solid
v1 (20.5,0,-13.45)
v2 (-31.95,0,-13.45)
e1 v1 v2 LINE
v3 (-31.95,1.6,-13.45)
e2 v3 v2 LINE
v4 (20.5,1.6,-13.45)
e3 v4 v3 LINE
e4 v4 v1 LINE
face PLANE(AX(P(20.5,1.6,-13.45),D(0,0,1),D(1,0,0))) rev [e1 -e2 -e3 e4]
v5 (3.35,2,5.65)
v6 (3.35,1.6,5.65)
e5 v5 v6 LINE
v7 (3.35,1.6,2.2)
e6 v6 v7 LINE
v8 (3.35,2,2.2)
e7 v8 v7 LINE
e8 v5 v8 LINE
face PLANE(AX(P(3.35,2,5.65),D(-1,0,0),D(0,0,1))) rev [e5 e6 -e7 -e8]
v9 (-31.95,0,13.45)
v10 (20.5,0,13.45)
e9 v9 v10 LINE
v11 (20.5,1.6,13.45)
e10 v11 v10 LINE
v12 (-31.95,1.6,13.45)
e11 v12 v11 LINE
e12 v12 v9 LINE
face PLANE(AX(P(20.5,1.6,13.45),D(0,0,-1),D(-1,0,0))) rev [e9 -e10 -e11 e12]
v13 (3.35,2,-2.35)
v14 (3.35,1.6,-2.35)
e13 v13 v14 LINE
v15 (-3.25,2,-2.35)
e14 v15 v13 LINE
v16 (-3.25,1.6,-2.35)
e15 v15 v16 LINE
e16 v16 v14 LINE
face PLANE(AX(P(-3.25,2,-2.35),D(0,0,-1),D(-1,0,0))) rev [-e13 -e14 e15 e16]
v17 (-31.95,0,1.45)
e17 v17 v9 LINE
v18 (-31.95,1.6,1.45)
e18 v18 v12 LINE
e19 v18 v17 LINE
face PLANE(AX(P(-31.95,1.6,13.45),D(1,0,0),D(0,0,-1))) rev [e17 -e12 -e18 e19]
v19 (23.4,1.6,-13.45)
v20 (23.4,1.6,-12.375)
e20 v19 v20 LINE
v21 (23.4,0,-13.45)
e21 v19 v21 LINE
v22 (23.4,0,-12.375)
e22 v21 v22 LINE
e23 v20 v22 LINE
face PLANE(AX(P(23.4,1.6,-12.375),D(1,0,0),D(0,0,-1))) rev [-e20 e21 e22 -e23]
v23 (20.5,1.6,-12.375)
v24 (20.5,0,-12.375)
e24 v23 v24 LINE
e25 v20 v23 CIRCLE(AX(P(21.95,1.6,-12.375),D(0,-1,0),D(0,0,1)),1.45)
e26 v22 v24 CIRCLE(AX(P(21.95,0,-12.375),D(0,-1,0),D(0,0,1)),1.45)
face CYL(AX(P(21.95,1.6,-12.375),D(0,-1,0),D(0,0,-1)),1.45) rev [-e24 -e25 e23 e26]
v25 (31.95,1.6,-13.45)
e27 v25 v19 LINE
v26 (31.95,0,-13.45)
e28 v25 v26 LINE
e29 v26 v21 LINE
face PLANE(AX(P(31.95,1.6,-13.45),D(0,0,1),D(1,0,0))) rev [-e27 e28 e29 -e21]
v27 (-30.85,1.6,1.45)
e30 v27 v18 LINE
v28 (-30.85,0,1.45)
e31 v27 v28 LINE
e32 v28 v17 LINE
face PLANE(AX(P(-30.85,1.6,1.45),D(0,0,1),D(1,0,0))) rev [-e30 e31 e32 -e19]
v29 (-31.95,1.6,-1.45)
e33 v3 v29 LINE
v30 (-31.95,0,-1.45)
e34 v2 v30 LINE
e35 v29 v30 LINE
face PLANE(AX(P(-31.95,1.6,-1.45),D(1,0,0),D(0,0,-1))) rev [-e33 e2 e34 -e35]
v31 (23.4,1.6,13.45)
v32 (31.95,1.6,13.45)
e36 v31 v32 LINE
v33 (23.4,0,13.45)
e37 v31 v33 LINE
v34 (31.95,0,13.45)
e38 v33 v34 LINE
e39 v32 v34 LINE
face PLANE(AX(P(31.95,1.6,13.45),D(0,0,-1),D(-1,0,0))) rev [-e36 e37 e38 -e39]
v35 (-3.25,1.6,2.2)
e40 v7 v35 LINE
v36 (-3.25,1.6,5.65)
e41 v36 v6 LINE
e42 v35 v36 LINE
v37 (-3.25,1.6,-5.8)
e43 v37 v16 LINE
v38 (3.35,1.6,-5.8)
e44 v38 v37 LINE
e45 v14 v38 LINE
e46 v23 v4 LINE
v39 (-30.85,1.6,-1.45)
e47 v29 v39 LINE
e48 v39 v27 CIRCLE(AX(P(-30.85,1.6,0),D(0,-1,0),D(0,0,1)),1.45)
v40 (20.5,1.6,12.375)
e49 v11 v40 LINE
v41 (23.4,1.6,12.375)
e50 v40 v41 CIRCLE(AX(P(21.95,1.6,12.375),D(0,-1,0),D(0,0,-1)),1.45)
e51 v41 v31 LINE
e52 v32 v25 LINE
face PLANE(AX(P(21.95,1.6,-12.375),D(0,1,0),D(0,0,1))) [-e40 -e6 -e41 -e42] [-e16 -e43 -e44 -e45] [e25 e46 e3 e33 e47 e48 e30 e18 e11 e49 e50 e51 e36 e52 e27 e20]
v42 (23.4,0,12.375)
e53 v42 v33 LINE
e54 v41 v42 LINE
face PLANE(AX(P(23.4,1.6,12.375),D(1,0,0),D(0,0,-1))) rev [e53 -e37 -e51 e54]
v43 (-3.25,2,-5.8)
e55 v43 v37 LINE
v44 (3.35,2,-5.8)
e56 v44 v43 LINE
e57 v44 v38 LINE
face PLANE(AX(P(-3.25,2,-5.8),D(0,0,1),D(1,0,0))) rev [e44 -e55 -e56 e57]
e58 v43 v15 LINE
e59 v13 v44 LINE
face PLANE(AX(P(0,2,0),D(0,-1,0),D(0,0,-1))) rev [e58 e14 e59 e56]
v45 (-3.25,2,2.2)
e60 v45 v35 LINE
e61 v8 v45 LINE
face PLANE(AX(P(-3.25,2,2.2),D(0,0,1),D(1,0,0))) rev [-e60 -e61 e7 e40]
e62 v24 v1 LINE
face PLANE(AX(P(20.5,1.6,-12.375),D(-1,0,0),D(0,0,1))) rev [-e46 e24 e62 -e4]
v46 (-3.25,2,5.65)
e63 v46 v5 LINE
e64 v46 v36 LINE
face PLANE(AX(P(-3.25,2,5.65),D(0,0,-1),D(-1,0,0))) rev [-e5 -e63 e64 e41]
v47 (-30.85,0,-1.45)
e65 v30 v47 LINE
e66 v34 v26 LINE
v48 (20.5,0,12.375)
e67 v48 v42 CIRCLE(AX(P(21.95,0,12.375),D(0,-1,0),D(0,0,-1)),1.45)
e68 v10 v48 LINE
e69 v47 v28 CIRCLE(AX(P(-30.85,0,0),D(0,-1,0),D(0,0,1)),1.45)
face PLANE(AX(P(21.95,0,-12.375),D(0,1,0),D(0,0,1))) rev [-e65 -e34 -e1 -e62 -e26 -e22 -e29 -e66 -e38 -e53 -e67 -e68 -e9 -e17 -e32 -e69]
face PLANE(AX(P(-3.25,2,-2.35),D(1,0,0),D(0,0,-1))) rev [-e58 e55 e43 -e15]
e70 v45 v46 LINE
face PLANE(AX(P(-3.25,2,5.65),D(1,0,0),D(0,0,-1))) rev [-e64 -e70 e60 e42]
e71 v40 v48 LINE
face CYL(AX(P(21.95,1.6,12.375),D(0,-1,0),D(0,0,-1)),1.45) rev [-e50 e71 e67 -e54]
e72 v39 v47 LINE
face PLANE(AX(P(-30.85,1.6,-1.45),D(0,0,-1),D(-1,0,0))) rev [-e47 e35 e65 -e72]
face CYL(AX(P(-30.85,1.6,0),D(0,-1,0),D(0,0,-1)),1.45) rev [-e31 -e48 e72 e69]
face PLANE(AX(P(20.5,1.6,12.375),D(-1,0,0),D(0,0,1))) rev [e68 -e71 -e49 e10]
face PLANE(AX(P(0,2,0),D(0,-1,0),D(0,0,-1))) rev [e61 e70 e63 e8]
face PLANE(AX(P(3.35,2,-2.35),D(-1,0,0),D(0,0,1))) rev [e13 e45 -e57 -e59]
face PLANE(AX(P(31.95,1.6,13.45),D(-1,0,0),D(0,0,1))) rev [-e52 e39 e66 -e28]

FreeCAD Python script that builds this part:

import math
import FreeCAD as App
import Part
import Sketcher

doc = App.newDocument("Part")
body = doc.addObject("PartDesign::Body", "Body")

# Sketch on XZ plane
sketch1 = doc.addObject("Sketcher::SketchObject", "Sketch")
body.addObject(sketch1)
sketch1.AttachmentSupport = (doc.XZ_Plane, [""])
sketch1.MapMode = "FlatFace"
sketch1.addGeometry([
    Part.LineSegment(App.Vector(23.4, 13.4, 0), App.Vector(31.9, 13.4, 0)),  # 0
    Part.LineSegment(App.Vector(31.9, 13.4, 0), App.Vector(31.9, -13.4, 0)),  # 1
    Part.LineSegment(App.Vector(31.9, -13.4, 0), App.Vector(23.4, -13.4, 0)),  # 2
    Part.LineSegment(App.Vector(23.4, -13.4, 0), App.Vector(23.4, -12.4, 0)),  # 3
    Part.ArcOfCircle(Part.Circle(App.Vector(21.9, -12.4, 0), App.Vector(0, 0, 1), 1.4), math.radians(0), math.radians(180)),  # 4
    Part.LineSegment(App.Vector(20.5, -12.4, 0), App.Vector(20.5, -13.4, 0)),  # 5
    Part.LineSegment(App.Vector(20.5, -13.4, 0), App.Vector(-31.9, -13.4, 0)),  # 6
    Part.LineSegment(App.Vector(-31.9, -13.4, 0), App.Vector(-31.9, -1.4, 0)),  # 7
    Part.LineSegment(App.Vector(-31.9, -1.4, 0), App.Vector(-30.9, -1.4, 0)),  # 8
    Part.ArcOfCircle(Part.Circle(App.Vector(-30.9, 0, 0), App.Vector(0, 0, 1), 1.4), math.radians(-90), math.radians(90)),  # 9
    Part.LineSegment(App.Vector(-30.9, 1.4, 0), App.Vector(-31.9, 1.4, 0)),  # 10
    Part.LineSegment(App.Vector(-31.9, 1.4, 0), App.Vector(-31.9, 13.4, 0)),  # 11
    Part.LineSegment(App.Vector(-31.9, 13.4, 0), App.Vector(20.5, 13.4, 0)),  # 12
    Part.LineSegment(App.Vector(20.5, 13.4, 0), App.Vector(20.5, 12.4, 0)),  # 13
    Part.ArcOfCircle(Part.Circle(App.Vector(21.9, 12.4, 0), App.Vector(0, 0, 1), 1.4), math.radians(180), math.radians(360)),  # 14
    Part.LineSegment(App.Vector(23.4, 12.4, 0), App.Vector(23.4, 13.4, 0)),  # 15
], False)
sketch1.addConstraint([
    Sketcher.Constraint("Coincident", 0, 2, 1, 1),
    Sketcher.Constraint("Coincident", 1, 2, 2, 1),
    Sketcher.Constraint("Coincident", 2, 2, 3, 1),
    Sketcher.Constraint("Tangent", 3, 2, 4, 1),
    Sketcher.Constraint("Tangent", 4, 2, 5, 1),
    Sketcher.Constraint("Coincident", 5, 2, 6, 1),
    Sketcher.Constraint("Coincident", 6, 2, 7, 1),
    Sketcher.Constraint("Coincident", 7, 2, 8, 1),
    Sketcher.Constraint("Tangent", 8, 2, 9, 1),
    Sketcher.Constraint("Tangent", 9, 2, 10, 1),
    Sketcher.Constraint("Coincident", 10, 2, 11, 1),
    Sketcher.Constraint("Coincident", 11, 2, 12, 1),
    Sketcher.Constraint("Coincident", 12, 2, 13, 1),
    Sketcher.Constraint("Tangent", 13, 2, 14, 1),
    Sketcher.Constraint("Tangent", 14, 2, 15, 1),
    Sketcher.Constraint("Coincident", 15, 2, 0, 1),
    Sketcher.Constraint("Horizontal", 0),
    Sketcher.Constraint("Vertical", 1),
    Sketcher.Constraint("Horizontal", 2),
    Sketcher.Constraint("Vertical", 3),
    Sketcher.Constraint("Vertical", 5),
    Sketcher.Constraint("Horizontal", 6),
    Sketcher.Constraint("Vertical", 7),
    Sketcher.Constraint("Horizontal", 8),
    Sketcher.Constraint("Horizontal", 10),
    Sketcher.Constraint("Vertical", 11),
    Sketcher.Constraint("Horizontal", 12),
    Sketcher.Constraint("Vertical", 13),
    Sketcher.Constraint("Vertical", 15),
    Sketcher.Constraint("Equal", 4, 9),
    Sketcher.Constraint("Equal", 9, 14),
    Sketcher.Constraint("Symmetric", 0, 2, 6, 2, -1, 1),
    Sketcher.Constraint("Symmetric", 1, 2, 11, 2, -1, 1),
    Sketcher.Constraint("Symmetric", 4, 3, 14, 3, -1),
    Sketcher.Constraint("PointOnObject", 9, 3, -1),
    Sketcher.Constraint("Horizontal", 2, 2, 5, 2),
    Sketcher.Constraint("DistanceY", 7, 1, 7, 2, 12.0),
    Sketcher.Constraint("Radius", 4, 1.45),
    Sketcher.Constraint("DistanceX", 8, 1, 8, 2, 1.1),
    Sketcher.Constraint("DistanceX", 14, 3, 0, 2, 10.0),
    Sketcher.Constraint("DistanceX", 6, 2, 6, 1, 52.45),
    Sketcher.Constraint("DistanceY", 3, 1, 3, 2, 1.075),
])
pad1 = doc.addObject("PartDesign::Pad", "Pad")
body.addObject(pad1)
pad1.Profile = sketch1
pad1.Length = 1.6
pad1.Reversed = True

# Sketch on XZ plane
sketch2 = doc.addObject("Sketcher::SketchObject", "Sketch001")
body.addObject(sketch2)
sketch2.AttachmentSupport = (doc.XZ_Plane, [""])
sketch2.MapMode = "FlatFace"
sketch2.AttachmentOffset = App.Placement(App.Vector(0, 0, -1.6), App.Rotation())
sketch2.addGeometry([
    Part.LineSegment(App.Vector(-3.2, -5.8, 0), App.Vector(-3.2, -2.4, 0)),  # 0
    Part.LineSegment(App.Vector(-3.2, -2.4, 0), App.Vector(3.4, -2.4, 0)),  # 1
    Part.LineSegment(App.Vector(3.4, -2.4, 0), App.Vector(3.4, -5.8, 0)),  # 2
    Part.LineSegment(App.Vector(3.4, -5.8, 0), App.Vector(-3.2, -5.8, 0)),  # 3
    Part.LineSegment(App.Vector(-3.2, 2.2, 0), App.Vector(-3.2, 5.7, 0)),  # 4
    Part.LineSegment(App.Vector(-3.2, 5.7, 0), App.Vector(3.4, 5.7, 0)),  # 5
    Part.LineSegment(App.Vector(3.4, 5.7, 0), App.Vector(3.4, 2.2, 0)),  # 6
    Part.LineSegment(App.Vector(3.4, 2.2, 0), App.Vector(-3.2, 2.2, 0)),  # 7
], False)
sketch2.addConstraint([
    Sketcher.Constraint("Coincident", 0, 2, 1, 1),
    Sketcher.Constraint("Coincident", 1, 2, 2, 1),
    Sketcher.Constraint("Coincident", 2, 2, 3, 1),
    Sketcher.Constraint("Coincident", 3, 2, 0, 1),
    Sketcher.Constraint("Coincident", 4, 2, 5, 1),
    Sketcher.Constraint("Coincident", 5, 2, 6, 1),
    Sketcher.Constraint("Coincident", 6, 2, 7, 1),
    Sketcher.Constraint("Coincident", 7, 2, 4, 1),
    Sketcher.Constraint("Vertical", 0),
    Sketcher.Constraint("Horizontal", 1),
    Sketcher.Constraint("Vertical", 2),
    Sketcher.Constraint("Horizontal", 3),
    Sketcher.Constraint("Vertical", 4),
    Sketcher.Constraint("Horizontal", 5),
    Sketcher.Constraint("Vertical", 6),
    Sketcher.Constraint("Horizontal", 7),
    Sketcher.Constraint("Vertical", 3, 2, 4, 2),
    Sketcher.Constraint("Vertical", 2, 2, 5, 2),
    Sketcher.Constraint("Equal", 2, 4),
    Sketcher.Constraint("DistanceX", 1, 1, 1, 2, 6.6),
    Sketcher.Constraint("DistanceY", 0, 2, 4, 2, 8.0),
    Sketcher.Constraint("DistanceY", 0, 1, 0, 2, 3.45),
    Sketcher.Constraint("DistanceY", 2, 2, -1, 1, 5.8),
    Sketcher.Constraint("DistanceX", 0, 2, -1, 1, 3.25),
])
pad2 = doc.addObject("PartDesign::Pad", "Pad001")
body.addObject(pad2)
pad2.Profile = sketch2
pad2.Length = 0.4
pad2.Reversed = True

doc.recompute()
